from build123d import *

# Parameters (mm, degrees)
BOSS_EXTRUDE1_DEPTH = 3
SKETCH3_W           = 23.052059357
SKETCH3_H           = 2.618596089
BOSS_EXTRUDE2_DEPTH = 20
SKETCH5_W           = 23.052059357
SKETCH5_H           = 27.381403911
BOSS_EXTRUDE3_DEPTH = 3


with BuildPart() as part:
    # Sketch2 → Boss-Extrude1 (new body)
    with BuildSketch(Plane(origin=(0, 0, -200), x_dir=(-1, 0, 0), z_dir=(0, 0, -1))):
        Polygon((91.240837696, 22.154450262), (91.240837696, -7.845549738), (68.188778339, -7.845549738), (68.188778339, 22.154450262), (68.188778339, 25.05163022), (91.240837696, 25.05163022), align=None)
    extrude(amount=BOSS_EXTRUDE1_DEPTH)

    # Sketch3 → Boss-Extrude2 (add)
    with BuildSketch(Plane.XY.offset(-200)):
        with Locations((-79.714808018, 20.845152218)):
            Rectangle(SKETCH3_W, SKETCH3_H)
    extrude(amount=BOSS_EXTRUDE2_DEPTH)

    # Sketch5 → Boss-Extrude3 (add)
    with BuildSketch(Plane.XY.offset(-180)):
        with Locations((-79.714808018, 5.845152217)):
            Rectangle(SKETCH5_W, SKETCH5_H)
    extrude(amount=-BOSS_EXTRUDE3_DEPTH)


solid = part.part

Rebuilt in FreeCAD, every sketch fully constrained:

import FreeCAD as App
import Part
import Sketcher
Q = App.Units.Quantity


def add_polygon(sketch, points):
    """Adds a closed chain of lines whose ends are joined by coincident constraints."""
    first, n = sketch.GeometryCount, len(points)
    for a, b in zip(points, points[1:] + points[:1]):
        sketch.addGeometry(Part.LineSegment(App.Vector(*a, 0), App.Vector(*b, 0)), False)
    for i in range(n):
        sketch.addConstraint(Sketcher.Constraint("Coincident", first + i, 2, first + (i + 1) % n, 1))

doc = App.newDocument("Part")
body = doc.addObject("PartDesign::Body", "Body")

# Sketch on XY plane
sketch1 = doc.addObject("Sketcher::SketchObject", "Sketch")
body.addObject(sketch1)
sketch1.AttachmentSupport = (doc.XY_Plane, [""])
sketch1.MapMode = "FlatFace"
sketch1.AttachmentOffset = App.Placement(App.Vector(0, 0, -200), App.Rotation())
add_polygon(sketch1, [(-91.240838, -7.84555), (-91.240838, 25.05163), (-68.188778, 25.05163), (-68.188778, -7.84555)])  # lines 0-3
sketch1.addConstraint(Sketcher.Constraint("Vertical", 0))
sketch1.addConstraint(Sketcher.Constraint("Horizontal", 1))
sketch1.addConstraint(Sketcher.Constraint("Vertical", 2))
sketch1.addConstraint(Sketcher.Constraint("Horizontal", 3))
sketch1.addConstraint(Sketcher.Constraint("DistanceX", 1, 1, 1, 2, Q("23.052059 mm")))
sketch1.addConstraint(Sketcher.Constraint("DistanceY", 0, 1, 0, 2, Q("32.89718 mm")))
sketch1.addConstraint(Sketcher.Constraint("DistanceY", -1, 1, 0, 2, Q("25.05163 mm")))
sketch1.addConstraint(Sketcher.Constraint("DistanceX", 1, 2, -1, 1, Q("68.188778 mm")))
pad1 = doc.addObject("PartDesign::Pad", "Pad")
body.addObject(pad1)
pad1.Profile = sketch1
pad1.Length = 3
pad1.Reversed = True

# Sketch on XY plane
sketch2 = doc.addObject("Sketcher::SketchObject", "Sketch001")
body.addObject(sketch2)
sketch2.AttachmentSupport = (doc.XY_Plane, [""])
sketch2.MapMode = "FlatFace"
sketch2.AttachmentOffset = App.Placement(App.Vector(0, 0, -200), App.Rotation())
add_polygon(sketch2, [(-91.240838, 22.15445), (-91.240838, 19.535854), (-68.188778, 19.535854), (-68.188778, 22.15445)])  # lines 0-3
sketch2.addConstraint(Sketcher.Constraint("Vertical", 0))
sketch2.addConstraint(Sketcher.Constraint("Horizontal", 1))
sketch2.addConstraint(Sketcher.Constraint("Vertical", 2))
sketch2.addConstraint(Sketcher.Constraint("Horizontal", 3))
sketch2.addConstraint(Sketcher.Constraint("DistanceX", 1, 1, 1, 2, Q("23.052059 mm")))
sketch2.addConstraint(Sketcher.Constraint("DistanceY", 0, 2, 0, 1, Q("2.618596 mm")))
sketch2.addConstraint(Sketcher.Constraint("DistanceX", 1, 2, -1, 1, Q("68.188778 mm")))
sketch2.addConstraint(Sketcher.Constraint("DistanceY", -1, 1, 2, 2, Q("22.15445 mm")))
pad2 = doc.addObject("PartDesign::Pad", "Pad001")
body.addObject(pad2)
pad2.Profile = sketch2
pad2.Length = 20

# Sketch on XY plane
sketch3 = doc.addObject("Sketcher::SketchObject", "Sketch002")
body.addObject(sketch3)
sketch3.AttachmentSupport = (doc.XY_Plane, [""])
sketch3.MapMode = "FlatFace"
sketch3.AttachmentOffset = App.Placement(App.Vector(0, 0, -180), App.Rotation())
add_polygon(sketch3, [(-91.240838, 19.535854), (-91.240838, -7.84555), (-68.188778, -7.84555), (-68.188778, 19.535854)])  # lines 0-3
sketch3.addConstraint(Sketcher.Constraint("Vertical", 0))
sketch3.addConstraint(Sketcher.Constraint("Horizontal", 1))
sketch3.addConstraint(Sketcher.Constraint("Vertical", 2))
sketch3.addConstraint(Sketcher.Constraint("Horizontal", 3))
sketch3.addConstraint(Sketcher.Constraint("DistanceX", 1, 1, 1, 2, Q("23.052059 mm")))
sketch3.addConstraint(Sketcher.Constraint("DistanceY", 0, 2, 0, 1, Q("27.381404 mm")))
sketch3.addConstraint(Sketcher.Constraint("DistanceY", 0, 2, -1, 1, Q("7.84555 mm")))
sketch3.addConstraint(Sketcher.Constraint("DistanceX", 1, 2, -1, 1, Q("68.188778 mm")))
pad3 = doc.addObject("PartDesign::Pad", "Pad002")
body.addObject(pad3)
pad3.Profile = sketch3
pad3.Length = 3
pad3.Reversed = True

doc.recompute()
